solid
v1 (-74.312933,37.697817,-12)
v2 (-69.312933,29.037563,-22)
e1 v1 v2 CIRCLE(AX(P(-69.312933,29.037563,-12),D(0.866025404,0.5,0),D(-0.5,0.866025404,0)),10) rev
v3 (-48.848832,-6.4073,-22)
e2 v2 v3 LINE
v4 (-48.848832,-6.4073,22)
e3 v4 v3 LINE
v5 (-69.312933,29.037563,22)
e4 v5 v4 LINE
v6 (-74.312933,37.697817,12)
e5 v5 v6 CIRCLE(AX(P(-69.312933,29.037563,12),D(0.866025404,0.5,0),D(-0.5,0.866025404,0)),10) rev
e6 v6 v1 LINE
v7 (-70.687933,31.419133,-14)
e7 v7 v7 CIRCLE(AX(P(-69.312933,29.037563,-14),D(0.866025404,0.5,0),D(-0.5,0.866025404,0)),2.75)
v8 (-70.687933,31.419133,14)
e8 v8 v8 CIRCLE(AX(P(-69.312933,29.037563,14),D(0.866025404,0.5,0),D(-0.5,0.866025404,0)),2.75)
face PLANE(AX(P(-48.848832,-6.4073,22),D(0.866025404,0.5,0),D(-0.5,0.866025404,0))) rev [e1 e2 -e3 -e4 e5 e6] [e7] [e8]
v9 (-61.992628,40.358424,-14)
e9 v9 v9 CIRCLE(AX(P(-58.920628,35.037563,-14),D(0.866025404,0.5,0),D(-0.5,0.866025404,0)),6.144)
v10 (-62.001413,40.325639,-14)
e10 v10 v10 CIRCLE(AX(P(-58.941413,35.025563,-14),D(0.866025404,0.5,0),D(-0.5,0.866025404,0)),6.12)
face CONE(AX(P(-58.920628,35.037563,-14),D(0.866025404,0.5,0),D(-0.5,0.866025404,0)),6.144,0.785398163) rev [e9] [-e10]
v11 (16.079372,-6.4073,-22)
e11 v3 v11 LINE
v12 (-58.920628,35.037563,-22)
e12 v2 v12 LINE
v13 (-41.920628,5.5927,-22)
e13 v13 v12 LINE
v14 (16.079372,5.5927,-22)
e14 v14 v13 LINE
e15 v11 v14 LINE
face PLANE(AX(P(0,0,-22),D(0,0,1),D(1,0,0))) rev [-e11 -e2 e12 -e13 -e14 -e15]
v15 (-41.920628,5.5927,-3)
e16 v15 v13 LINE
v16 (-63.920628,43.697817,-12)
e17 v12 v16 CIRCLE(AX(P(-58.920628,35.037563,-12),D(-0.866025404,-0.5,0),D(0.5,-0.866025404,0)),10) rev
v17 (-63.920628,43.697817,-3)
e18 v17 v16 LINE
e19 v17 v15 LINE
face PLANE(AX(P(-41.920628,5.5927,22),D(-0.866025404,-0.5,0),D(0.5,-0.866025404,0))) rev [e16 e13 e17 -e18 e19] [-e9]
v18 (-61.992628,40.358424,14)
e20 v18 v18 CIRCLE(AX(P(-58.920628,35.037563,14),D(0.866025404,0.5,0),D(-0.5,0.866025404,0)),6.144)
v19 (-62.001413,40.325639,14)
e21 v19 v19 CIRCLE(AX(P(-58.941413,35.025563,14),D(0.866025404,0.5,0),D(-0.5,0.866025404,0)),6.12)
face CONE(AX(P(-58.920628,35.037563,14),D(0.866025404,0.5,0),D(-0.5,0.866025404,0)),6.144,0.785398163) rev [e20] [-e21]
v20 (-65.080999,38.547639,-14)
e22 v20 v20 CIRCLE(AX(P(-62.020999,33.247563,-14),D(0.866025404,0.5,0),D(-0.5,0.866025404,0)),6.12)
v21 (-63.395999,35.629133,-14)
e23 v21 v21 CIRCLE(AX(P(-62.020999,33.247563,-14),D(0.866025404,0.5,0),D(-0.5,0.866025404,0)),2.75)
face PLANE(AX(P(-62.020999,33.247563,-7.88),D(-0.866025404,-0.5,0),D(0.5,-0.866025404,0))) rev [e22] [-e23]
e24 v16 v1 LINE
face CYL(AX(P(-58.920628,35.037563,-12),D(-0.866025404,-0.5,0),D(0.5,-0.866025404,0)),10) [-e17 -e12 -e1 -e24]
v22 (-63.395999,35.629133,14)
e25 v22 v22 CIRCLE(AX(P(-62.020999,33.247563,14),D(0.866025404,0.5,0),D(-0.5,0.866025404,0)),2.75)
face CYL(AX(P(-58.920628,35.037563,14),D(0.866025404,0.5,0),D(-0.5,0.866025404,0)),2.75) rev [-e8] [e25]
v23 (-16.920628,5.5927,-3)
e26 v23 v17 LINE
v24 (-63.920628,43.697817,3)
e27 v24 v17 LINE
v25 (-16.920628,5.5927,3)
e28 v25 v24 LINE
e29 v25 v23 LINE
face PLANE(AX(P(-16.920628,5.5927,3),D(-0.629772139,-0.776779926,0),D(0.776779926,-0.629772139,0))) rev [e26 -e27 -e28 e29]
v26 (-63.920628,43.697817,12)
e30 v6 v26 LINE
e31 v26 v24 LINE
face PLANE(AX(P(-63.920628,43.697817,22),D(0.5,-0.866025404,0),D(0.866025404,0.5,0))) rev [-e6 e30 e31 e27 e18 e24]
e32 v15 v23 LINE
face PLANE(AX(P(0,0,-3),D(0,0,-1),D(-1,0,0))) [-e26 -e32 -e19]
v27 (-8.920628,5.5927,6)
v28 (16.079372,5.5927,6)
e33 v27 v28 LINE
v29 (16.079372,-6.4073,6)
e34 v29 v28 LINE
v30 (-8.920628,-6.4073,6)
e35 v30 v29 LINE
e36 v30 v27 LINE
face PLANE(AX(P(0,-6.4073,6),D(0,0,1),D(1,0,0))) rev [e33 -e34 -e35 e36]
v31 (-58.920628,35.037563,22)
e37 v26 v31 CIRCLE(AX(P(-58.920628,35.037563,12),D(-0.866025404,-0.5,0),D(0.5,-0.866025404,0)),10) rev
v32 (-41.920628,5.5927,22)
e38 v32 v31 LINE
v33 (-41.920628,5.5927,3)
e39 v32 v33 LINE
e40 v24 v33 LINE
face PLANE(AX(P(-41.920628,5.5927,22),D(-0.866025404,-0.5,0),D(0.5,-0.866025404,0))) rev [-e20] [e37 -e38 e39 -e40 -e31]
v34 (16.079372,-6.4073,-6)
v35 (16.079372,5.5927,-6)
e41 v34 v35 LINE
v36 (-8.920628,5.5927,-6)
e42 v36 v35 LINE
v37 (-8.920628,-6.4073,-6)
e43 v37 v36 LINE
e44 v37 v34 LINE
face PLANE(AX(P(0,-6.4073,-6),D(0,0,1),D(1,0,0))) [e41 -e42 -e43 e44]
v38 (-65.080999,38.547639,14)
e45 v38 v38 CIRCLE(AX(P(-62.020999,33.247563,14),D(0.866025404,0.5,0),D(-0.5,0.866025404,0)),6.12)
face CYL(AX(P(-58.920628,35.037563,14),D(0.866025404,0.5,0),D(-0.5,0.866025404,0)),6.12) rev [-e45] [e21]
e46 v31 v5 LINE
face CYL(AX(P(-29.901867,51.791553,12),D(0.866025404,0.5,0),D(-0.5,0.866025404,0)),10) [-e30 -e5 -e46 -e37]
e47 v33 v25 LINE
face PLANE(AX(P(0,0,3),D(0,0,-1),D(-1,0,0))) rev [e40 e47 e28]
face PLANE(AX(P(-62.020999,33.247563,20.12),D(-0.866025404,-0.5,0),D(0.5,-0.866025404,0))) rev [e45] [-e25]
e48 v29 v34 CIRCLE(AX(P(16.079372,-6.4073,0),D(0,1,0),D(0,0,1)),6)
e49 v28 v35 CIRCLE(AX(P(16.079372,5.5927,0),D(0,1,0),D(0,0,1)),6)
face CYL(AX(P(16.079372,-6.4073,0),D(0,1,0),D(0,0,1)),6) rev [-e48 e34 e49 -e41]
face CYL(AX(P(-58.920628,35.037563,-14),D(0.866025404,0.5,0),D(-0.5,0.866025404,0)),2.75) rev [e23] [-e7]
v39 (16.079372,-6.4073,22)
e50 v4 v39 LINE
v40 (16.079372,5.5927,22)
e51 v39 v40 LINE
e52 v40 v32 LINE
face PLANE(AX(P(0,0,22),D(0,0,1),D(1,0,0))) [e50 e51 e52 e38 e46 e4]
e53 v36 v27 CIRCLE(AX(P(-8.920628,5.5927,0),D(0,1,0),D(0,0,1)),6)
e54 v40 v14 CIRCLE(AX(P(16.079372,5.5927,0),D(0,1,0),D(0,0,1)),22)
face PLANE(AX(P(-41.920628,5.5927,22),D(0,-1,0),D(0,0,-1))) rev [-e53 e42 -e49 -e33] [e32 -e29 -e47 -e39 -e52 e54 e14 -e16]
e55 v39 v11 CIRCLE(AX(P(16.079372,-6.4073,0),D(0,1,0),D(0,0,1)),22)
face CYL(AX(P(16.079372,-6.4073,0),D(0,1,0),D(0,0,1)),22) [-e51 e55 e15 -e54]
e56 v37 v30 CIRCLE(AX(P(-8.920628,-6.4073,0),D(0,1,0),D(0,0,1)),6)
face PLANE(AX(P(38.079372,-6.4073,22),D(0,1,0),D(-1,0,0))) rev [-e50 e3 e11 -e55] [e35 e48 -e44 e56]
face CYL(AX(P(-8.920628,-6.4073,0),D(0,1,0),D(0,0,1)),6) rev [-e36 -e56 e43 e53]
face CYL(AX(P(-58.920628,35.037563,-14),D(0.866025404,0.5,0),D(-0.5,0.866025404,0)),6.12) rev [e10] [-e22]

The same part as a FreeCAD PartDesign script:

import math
import FreeCAD as App
import Part
import Sketcher

V = App.Vector
Q = App.Units.Quantity


def edges_at(feature, points):
    """Names of the edges that pass closest to the given points."""
    edges = feature.Shape.Edges
    near = lambda p: min(range(len(edges)), key=lambda i: edges[i].distToShape(Part.Vertex(*p))[0])
    return sorted({f"Edge{near(p) + 1}" for p in points})

doc = App.newDocument("Part")
params = doc.addObject("Spreadsheet::Sheet", "Params")
for row, (alias, value) in enumerate([
    ("sketch1_width", "80 mm"),
    ("sketch1_height", "12 mm"),
    ("sketch1_length", "44 mm"),
    ("sketch1_length2", "12 mm"),
    ("pad1_length", "44 mm"),
    ("sketch2_length", "3.37 mm"),
    ("sketch2_length2", "2.75 mm"),
    ("groove_angle", "360 deg"),
    ("linearpattern_pitch", "28 mm"),
    ("sketch3_width", "25 mm"),
    ("sketch3_length", "44 mm"),
    ("pad2_length", "6 mm"),
    ("sketch4_radius", "22 mm"),
    ("sketch4_radius2", "6 mm"),
    ("sketch4_width", "25 mm"),
    ("fillet_radius", "10 mm"),
    ("fillet2_radius", "10 mm"),
], start=1):
    params.set(f"A{row}", alias)
    params.set(f"B{row}", "=" + value)
    params.setAlias(f"B{row}", alias)

body = doc.addObject("PartDesign::Body", "Body")

# Sketch on XY plane
sketch1 = doc.addObject("Sketcher::SketchObject", "Sketch")
body.addObject(sketch1)
sketch1.AttachmentSupport = (doc.XY_Plane, [""])
sketch1.MapMode = "FlatFace"
sketch1.addGeometry([
    Part.LineSegment(V(38.079372, 5.5927, 0), V(-41.920628, 5.5927, 0)),  # 0
    Part.LineSegment(V(-41.920628, 5.5927, 0), V(-63.920628, 43.697817, 0)),  # 1
    Part.LineSegment(V(-63.920628, 43.697817, 0), V(-74.312933, 37.697817, 0)),  # 2
    Part.LineSegment(V(-74.312933, 37.697817, 0), V(-48.848832, -6.4073, 0)),  # 3
    Part.LineSegment(V(-48.848832, -6.4073, 0), V(38.079372, -6.4073, 0)),  # 4
    Part.LineSegment(V(38.079372, -6.4073, 0), V(38.079372, 5.5927, 0)),  # 5
], False)
sketch1.addConstraint([
    Sketcher.Constraint("Coincident", 0, 2, 1, 1),
    Sketcher.Constraint("Coincident", 1, 2, 2, 1),
    Sketcher.Constraint("Coincident", 2, 2, 3, 1),
    Sketcher.Constraint("Coincident", 3, 2, 4, 1),
    Sketcher.Constraint("Coincident", 4, 2, 5, 1),
    Sketcher.Constraint("Coincident", 5, 2, 0, 1),
    Sketcher.Constraint("Horizontal", 0),
    Sketcher.Constraint("Horizontal", 4),
    Sketcher.Constraint("Vertical", 5),
    Sketcher.Constraint("Perpendicular", 1, 2),
    Sketcher.Constraint("Perpendicular", 2, 3),
    Sketcher.Constraint("DistanceX", 0, 2, 0, 1, Q("80 mm")),
    Sketcher.Constraint("DistanceY", 5, 1, 5, 2, Q("12 mm")),
    Sketcher.Constraint("Angle", 1, Q("120 deg")),
    Sketcher.Constraint("Distance", 1, Q("44 mm")),
    Sketcher.Constraint("Distance", 2, Q("12 mm")),
    Sketcher.Constraint("DistanceY", -1, 1, 0, 2, Q("5.5927 mm")),
    Sketcher.Constraint("DistanceX", 0, 2, -1, 1, Q("41.920628 mm")),
])
sketch1.setExpression("Constraints[11]", "Params.sketch1_width")
sketch1.setExpression("Constraints[12]", "Params.sketch1_height")
sketch1.setExpression("Constraints[14]", "Params.sketch1_length")
sketch1.setExpression("Constraints[15]", "Params.sketch1_length2")
pad1 = doc.addObject("PartDesign::Pad", "Pad")
body.addObject(pad1)
pad1.Profile = sketch1
pad1.setExpression("Length", "Params.pad1_length")
pad1.Midplane = True

# Sketch on XY plane
sketch2 = doc.addObject("Sketcher::SketchObject", "Sketch001")
body.addObject(sketch2)
sketch2.AttachmentSupport = (doc.XY_Plane, [""])
sketch2.MapMode = "FlatFace"
sketch2.AttachmentOffset = App.Placement(V(0, 0, -14), App.Rotation())
sketch2.addGeometry([
    Part.LineSegment(V(-88.411009, 18.011284, 0), V(-58.920628, 35.037563, 0)),  # 0
    Part.LineSegment(V(-58.920628, 35.037563, 0), V(-61.992628, 40.358424, 0)),  # 1
    Part.LineSegment(V(-61.992628, 40.358424, 0), V(-62.001413, 40.325639, 0)),  # 2
    Part.LineSegment(V(-62.001413, 40.325639, 0), V(-65.080999, 38.547639, 0)),  # 3
    Part.LineSegment(V(-65.080999, 38.547639, 0), V(-63.395999, 35.629133, 0)),  # 4
    Part.LineSegment(V(-63.395999, 35.629133, 0), V(-89.786009, 20.392854, 0)),  # 5
    Part.LineSegment(V(-89.786009, 20.392854, 0), V(-88.411009, 18.011284, 0)),  # 6
], False)
sketch2.addGeometry(Part.LineSegment(V(-58.920628, 35.037563, 0), V(-88.411009, 18.011284, 0)), True)  # axis
sketch2.addConstraint([
    Sketcher.Constraint("Coincident", 0, 2, 1, 1),
    Sketcher.Constraint("Coincident", 1, 2, 2, 1),
    Sketcher.Constraint("Coincident", 2, 2, 3, 1),
    Sketcher.Constraint("Coincident", 3, 2, 4, 1),
    Sketcher.Constraint("Coincident", 4, 2, 5, 1),
    Sketcher.Constraint("Coincident", 5, 2, 6, 1),
    Sketcher.Constraint("Coincident", 6, 2, 0, 1),
    Sketcher.Constraint("Coincident", 7, 1, 0, 2),
    Sketcher.Constraint("Coincident", 7, 2, 6, 2),
    Sketcher.Constraint("Perpendicular", 0, 1),
    Sketcher.Constraint("Perpendicular", 1, 3),
    Sketcher.Constraint("Perpendicular", 3, 4),
    Sketcher.Constraint("Perpendicular", 4, 5),
    Sketcher.Constraint("Perpendicular", 5, 6),
    Sketcher.Constraint("Angle", 0, Q("30 deg")),
    Sketcher.Constraint("Angle", 2, Q("-105 deg")),
    Sketcher.Constraint("Distance", 4, Q("3.37 mm")),
    Sketcher.Constraint("Distance", 6, Q("2.75 mm")),
    Sketcher.Constraint("Distance", 1, Q("6.144 mm")),
    Sketcher.Constraint("Distance", 3, Q("3.556 mm")),
    Sketcher.Constraint("DistanceX", 3, 2, -1, 1, Q("65.080999 mm")),
    Sketcher.Constraint("Distance", 0, Q("34.052559 mm")),
    Sketcher.Constraint("DistanceY", -1, 1, 2, 2, Q("40.325639 mm")),
])
sketch2.setExpression("Constraints[16]", "Params.sketch2_length")
sketch2.setExpression("Constraints[17]", "Params.sketch2_length2")
groove = doc.addObject("PartDesign::Groove", "Groove")
body.addObject(groove)
groove.Profile = sketch2
groove.ReferenceAxis = (sketch2, ["Axis0"])
groove.setExpression("Angle", "Params.groove_angle")
doc.recompute()

linearpattern = doc.addObject("PartDesign::LinearPattern", "LinearPattern")
body.addObject(linearpattern)
linearpattern.Originals = [groove]
linearpattern.Direction = (doc.Z_Axis, [""])
linearpattern.Mode = "offset"
linearpattern.setExpression("Offset", "Params.linearpattern_pitch")
linearpattern.Occurrences = 2
body.Tip = linearpattern

# Sketch on XY plane
sketch3 = doc.addObject("Sketcher::SketchObject", "Sketch002")
body.addObject(sketch3)
sketch3.AttachmentSupport = (doc.XY_Plane, [""])
sketch3.MapMode = "FlatFace"
sketch3.addGeometry([
    Part.LineSegment(V(-63.920628, 43.697817, 0), V(-41.920628, 5.5927, 0)),
    Part.LineSegment(V(-41.920628, 5.5927, 0), V(-16.920628, 5.5927, 0)),
    Part.LineSegment(V(-16.920628, 5.5927, 0), V(-63.920628, 43.697817, 0)),
], False)
sketch3.addConstraint([
    Sketcher.Constraint("Coincident", 0, 2, 1, 1),
    Sketcher.Constraint("Coincident", 1, 2, 2, 1),
    Sketcher.Constraint("Coincident", 2, 2, 0, 1),
    Sketcher.Constraint("Horizontal", 1),
    Sketcher.Constraint("DistanceX", 1, 1, 1, 2, Q("25 mm")),
    Sketcher.Constraint("Angle", 0, Q("-60 deg")),
    Sketcher.Constraint("Distance", 0, Q("44 mm")),
    Sketcher.Constraint("DistanceY", -1, 1, 0, 2, Q("5.5927 mm")),
    Sketcher.Constraint("DistanceX", 0, 2, -1, 1, Q("41.920628 mm")),
])
sketch3.setExpression("Constraints[4]", "Params.sketch3_width")
sketch3.setExpression("Constraints[6]", "Params.sketch3_length")
pad2 = doc.addObject("PartDesign::Pad", "Pad001")
body.addObject(pad2)
pad2.Profile = sketch3
pad2.setExpression("Length", "Params.pad2_length")
pad2.Midplane = True

# Sketch on XZ plane
sketch4 = doc.addObject("Sketcher::SketchObject", "Sketch003")
body.addObject(sketch4)
sketch4.AttachmentSupport = (doc.XZ_Plane, [""])
sketch4.MapMode = "FlatFace"
sketch4.AttachmentOffset = App.Placement(V(0, 0, -5.5927), App.Rotation())
sketch4.addGeometry([
    Part.ArcOfCircle(Part.Circle(V(16.079372, 0, 0), V(0, 0, 1), 22), math.radians(-90), math.radians(0)),  # 0
    Part.LineSegment(V(38.079372, 0, 0), V(38.079372, -22, 0)),  # 1
    Part.LineSegment(V(38.079372, -22, 0), V(16.079372, -22, 0)),  # 2
    Part.ArcOfCircle(Part.Circle(V(16.079372, 0, 0), V(0, 0, 1), 22), math.radians(0), math.radians(90)),  # 3
    Part.LineSegment(V(16.079372, 22, 0), V(38.079372, 22, 0)),  # 4
    Part.LineSegment(V(38.079372, 22, 0), V(38.079372, 0, 0)),  # 5
    Part.LineSegment(V(-8.920628, 6, 0), V(16.079372, 6, 0)),  # 6
    Part.ArcOfCircle(Part.Circle(V(16.079372, 0, 0), V(0, 0, 1), 6), math.radians(-90), math.radians(90)),  # 7
    Part.LineSegment(V(16.079372, -6, 0), V(-8.920628, -6, 0)),  # 8
    Part.ArcOfCircle(Part.Circle(V(-8.920628, 0, 0), V(0, 0, 1), 6), math.radians(90), math.radians(270)),  # 9
], False)
sketch4.addConstraint([
    Sketcher.Constraint("Tangent", 0, 2, 1, 1),
    Sketcher.Constraint("Coincident", 1, 2, 2, 1),
    Sketcher.Constraint("Tangent", 2, 2, 0, 1),
    Sketcher.Constraint("Tangent", 3, 2, 4, 1),
    Sketcher.Constraint("Coincident", 4, 2, 5, 1),
    Sketcher.Constraint("Tangent", 5, 2, 3, 1),
    Sketcher.Constraint("Tangent", 6, 2, 7, 2),
    Sketcher.Constraint("Tangent", 7, 1, 8, 1),
    Sketcher.Constraint("Tangent", 8, 2, 9, 2),
    Sketcher.Constraint("Tangent", 9, 1, 6, 1),
    Sketcher.Constraint("Vertical", 1),
    Sketcher.Constraint("Horizontal", 2),
    Sketcher.Constraint("Horizontal", 4),
    Sketcher.Constraint("Vertical", 5),
    Sketcher.Constraint("Horizontal", 6),
    Sketcher.Constraint("Horizontal", 8),
    Sketcher.Constraint("Coincident", 3, 3, 0, 3),
    Sketcher.Constraint("Coincident", 7, 3, 0, 3),
    Sketcher.Constraint("Equal", 0, 3),
    Sketcher.Constraint("PointOnObject", 0, 3, -1),
    Sketcher.Constraint("Radius", 0, Q("22 mm")),
    Sketcher.Constraint("Radius", 7, Q("6 mm")),
    Sketcher.Constraint("DistanceX", 6, 1, 6, 2, Q("25 mm")),
    Sketcher.Constraint("DistanceX", -1, 1, 0, 3, Q("16.079372 mm")),
])
sketch4.setExpression("Constraints[20]", "Params.sketch4_radius")
sketch4.setExpression("Constraints[21]", "Params.sketch4_radius2")
sketch4.setExpression("Constraints[22]", "Params.sketch4_width")
pocket1 = doc.addObject("PartDesign::Pocket", "Pocket")
body.addObject(pocket1)
pocket1.Profile = sketch4
pocket1.Type = "ThroughAll"
pocket1.Reversed = True
doc.recompute()

fillet = doc.addObject("PartDesign::Fillet", "Fillet")
body.addObject(fillet)
fillet.Base = (pocket1, edges_at(pocket1, [(-69.117, 40.698, 22)]))
fillet.setExpression("Radius", "Params.fillet_radius")
doc.recompute()

fillet2 = doc.addObject("PartDesign::Fillet", "Fillet001")
body.addObject(fillet2)
fillet2.Base = (fillet, edges_at(fillet, [(-69.117, 40.698, -22)]))
fillet2.setExpression("Radius", "Params.fillet2_radius")

doc.recompute()
